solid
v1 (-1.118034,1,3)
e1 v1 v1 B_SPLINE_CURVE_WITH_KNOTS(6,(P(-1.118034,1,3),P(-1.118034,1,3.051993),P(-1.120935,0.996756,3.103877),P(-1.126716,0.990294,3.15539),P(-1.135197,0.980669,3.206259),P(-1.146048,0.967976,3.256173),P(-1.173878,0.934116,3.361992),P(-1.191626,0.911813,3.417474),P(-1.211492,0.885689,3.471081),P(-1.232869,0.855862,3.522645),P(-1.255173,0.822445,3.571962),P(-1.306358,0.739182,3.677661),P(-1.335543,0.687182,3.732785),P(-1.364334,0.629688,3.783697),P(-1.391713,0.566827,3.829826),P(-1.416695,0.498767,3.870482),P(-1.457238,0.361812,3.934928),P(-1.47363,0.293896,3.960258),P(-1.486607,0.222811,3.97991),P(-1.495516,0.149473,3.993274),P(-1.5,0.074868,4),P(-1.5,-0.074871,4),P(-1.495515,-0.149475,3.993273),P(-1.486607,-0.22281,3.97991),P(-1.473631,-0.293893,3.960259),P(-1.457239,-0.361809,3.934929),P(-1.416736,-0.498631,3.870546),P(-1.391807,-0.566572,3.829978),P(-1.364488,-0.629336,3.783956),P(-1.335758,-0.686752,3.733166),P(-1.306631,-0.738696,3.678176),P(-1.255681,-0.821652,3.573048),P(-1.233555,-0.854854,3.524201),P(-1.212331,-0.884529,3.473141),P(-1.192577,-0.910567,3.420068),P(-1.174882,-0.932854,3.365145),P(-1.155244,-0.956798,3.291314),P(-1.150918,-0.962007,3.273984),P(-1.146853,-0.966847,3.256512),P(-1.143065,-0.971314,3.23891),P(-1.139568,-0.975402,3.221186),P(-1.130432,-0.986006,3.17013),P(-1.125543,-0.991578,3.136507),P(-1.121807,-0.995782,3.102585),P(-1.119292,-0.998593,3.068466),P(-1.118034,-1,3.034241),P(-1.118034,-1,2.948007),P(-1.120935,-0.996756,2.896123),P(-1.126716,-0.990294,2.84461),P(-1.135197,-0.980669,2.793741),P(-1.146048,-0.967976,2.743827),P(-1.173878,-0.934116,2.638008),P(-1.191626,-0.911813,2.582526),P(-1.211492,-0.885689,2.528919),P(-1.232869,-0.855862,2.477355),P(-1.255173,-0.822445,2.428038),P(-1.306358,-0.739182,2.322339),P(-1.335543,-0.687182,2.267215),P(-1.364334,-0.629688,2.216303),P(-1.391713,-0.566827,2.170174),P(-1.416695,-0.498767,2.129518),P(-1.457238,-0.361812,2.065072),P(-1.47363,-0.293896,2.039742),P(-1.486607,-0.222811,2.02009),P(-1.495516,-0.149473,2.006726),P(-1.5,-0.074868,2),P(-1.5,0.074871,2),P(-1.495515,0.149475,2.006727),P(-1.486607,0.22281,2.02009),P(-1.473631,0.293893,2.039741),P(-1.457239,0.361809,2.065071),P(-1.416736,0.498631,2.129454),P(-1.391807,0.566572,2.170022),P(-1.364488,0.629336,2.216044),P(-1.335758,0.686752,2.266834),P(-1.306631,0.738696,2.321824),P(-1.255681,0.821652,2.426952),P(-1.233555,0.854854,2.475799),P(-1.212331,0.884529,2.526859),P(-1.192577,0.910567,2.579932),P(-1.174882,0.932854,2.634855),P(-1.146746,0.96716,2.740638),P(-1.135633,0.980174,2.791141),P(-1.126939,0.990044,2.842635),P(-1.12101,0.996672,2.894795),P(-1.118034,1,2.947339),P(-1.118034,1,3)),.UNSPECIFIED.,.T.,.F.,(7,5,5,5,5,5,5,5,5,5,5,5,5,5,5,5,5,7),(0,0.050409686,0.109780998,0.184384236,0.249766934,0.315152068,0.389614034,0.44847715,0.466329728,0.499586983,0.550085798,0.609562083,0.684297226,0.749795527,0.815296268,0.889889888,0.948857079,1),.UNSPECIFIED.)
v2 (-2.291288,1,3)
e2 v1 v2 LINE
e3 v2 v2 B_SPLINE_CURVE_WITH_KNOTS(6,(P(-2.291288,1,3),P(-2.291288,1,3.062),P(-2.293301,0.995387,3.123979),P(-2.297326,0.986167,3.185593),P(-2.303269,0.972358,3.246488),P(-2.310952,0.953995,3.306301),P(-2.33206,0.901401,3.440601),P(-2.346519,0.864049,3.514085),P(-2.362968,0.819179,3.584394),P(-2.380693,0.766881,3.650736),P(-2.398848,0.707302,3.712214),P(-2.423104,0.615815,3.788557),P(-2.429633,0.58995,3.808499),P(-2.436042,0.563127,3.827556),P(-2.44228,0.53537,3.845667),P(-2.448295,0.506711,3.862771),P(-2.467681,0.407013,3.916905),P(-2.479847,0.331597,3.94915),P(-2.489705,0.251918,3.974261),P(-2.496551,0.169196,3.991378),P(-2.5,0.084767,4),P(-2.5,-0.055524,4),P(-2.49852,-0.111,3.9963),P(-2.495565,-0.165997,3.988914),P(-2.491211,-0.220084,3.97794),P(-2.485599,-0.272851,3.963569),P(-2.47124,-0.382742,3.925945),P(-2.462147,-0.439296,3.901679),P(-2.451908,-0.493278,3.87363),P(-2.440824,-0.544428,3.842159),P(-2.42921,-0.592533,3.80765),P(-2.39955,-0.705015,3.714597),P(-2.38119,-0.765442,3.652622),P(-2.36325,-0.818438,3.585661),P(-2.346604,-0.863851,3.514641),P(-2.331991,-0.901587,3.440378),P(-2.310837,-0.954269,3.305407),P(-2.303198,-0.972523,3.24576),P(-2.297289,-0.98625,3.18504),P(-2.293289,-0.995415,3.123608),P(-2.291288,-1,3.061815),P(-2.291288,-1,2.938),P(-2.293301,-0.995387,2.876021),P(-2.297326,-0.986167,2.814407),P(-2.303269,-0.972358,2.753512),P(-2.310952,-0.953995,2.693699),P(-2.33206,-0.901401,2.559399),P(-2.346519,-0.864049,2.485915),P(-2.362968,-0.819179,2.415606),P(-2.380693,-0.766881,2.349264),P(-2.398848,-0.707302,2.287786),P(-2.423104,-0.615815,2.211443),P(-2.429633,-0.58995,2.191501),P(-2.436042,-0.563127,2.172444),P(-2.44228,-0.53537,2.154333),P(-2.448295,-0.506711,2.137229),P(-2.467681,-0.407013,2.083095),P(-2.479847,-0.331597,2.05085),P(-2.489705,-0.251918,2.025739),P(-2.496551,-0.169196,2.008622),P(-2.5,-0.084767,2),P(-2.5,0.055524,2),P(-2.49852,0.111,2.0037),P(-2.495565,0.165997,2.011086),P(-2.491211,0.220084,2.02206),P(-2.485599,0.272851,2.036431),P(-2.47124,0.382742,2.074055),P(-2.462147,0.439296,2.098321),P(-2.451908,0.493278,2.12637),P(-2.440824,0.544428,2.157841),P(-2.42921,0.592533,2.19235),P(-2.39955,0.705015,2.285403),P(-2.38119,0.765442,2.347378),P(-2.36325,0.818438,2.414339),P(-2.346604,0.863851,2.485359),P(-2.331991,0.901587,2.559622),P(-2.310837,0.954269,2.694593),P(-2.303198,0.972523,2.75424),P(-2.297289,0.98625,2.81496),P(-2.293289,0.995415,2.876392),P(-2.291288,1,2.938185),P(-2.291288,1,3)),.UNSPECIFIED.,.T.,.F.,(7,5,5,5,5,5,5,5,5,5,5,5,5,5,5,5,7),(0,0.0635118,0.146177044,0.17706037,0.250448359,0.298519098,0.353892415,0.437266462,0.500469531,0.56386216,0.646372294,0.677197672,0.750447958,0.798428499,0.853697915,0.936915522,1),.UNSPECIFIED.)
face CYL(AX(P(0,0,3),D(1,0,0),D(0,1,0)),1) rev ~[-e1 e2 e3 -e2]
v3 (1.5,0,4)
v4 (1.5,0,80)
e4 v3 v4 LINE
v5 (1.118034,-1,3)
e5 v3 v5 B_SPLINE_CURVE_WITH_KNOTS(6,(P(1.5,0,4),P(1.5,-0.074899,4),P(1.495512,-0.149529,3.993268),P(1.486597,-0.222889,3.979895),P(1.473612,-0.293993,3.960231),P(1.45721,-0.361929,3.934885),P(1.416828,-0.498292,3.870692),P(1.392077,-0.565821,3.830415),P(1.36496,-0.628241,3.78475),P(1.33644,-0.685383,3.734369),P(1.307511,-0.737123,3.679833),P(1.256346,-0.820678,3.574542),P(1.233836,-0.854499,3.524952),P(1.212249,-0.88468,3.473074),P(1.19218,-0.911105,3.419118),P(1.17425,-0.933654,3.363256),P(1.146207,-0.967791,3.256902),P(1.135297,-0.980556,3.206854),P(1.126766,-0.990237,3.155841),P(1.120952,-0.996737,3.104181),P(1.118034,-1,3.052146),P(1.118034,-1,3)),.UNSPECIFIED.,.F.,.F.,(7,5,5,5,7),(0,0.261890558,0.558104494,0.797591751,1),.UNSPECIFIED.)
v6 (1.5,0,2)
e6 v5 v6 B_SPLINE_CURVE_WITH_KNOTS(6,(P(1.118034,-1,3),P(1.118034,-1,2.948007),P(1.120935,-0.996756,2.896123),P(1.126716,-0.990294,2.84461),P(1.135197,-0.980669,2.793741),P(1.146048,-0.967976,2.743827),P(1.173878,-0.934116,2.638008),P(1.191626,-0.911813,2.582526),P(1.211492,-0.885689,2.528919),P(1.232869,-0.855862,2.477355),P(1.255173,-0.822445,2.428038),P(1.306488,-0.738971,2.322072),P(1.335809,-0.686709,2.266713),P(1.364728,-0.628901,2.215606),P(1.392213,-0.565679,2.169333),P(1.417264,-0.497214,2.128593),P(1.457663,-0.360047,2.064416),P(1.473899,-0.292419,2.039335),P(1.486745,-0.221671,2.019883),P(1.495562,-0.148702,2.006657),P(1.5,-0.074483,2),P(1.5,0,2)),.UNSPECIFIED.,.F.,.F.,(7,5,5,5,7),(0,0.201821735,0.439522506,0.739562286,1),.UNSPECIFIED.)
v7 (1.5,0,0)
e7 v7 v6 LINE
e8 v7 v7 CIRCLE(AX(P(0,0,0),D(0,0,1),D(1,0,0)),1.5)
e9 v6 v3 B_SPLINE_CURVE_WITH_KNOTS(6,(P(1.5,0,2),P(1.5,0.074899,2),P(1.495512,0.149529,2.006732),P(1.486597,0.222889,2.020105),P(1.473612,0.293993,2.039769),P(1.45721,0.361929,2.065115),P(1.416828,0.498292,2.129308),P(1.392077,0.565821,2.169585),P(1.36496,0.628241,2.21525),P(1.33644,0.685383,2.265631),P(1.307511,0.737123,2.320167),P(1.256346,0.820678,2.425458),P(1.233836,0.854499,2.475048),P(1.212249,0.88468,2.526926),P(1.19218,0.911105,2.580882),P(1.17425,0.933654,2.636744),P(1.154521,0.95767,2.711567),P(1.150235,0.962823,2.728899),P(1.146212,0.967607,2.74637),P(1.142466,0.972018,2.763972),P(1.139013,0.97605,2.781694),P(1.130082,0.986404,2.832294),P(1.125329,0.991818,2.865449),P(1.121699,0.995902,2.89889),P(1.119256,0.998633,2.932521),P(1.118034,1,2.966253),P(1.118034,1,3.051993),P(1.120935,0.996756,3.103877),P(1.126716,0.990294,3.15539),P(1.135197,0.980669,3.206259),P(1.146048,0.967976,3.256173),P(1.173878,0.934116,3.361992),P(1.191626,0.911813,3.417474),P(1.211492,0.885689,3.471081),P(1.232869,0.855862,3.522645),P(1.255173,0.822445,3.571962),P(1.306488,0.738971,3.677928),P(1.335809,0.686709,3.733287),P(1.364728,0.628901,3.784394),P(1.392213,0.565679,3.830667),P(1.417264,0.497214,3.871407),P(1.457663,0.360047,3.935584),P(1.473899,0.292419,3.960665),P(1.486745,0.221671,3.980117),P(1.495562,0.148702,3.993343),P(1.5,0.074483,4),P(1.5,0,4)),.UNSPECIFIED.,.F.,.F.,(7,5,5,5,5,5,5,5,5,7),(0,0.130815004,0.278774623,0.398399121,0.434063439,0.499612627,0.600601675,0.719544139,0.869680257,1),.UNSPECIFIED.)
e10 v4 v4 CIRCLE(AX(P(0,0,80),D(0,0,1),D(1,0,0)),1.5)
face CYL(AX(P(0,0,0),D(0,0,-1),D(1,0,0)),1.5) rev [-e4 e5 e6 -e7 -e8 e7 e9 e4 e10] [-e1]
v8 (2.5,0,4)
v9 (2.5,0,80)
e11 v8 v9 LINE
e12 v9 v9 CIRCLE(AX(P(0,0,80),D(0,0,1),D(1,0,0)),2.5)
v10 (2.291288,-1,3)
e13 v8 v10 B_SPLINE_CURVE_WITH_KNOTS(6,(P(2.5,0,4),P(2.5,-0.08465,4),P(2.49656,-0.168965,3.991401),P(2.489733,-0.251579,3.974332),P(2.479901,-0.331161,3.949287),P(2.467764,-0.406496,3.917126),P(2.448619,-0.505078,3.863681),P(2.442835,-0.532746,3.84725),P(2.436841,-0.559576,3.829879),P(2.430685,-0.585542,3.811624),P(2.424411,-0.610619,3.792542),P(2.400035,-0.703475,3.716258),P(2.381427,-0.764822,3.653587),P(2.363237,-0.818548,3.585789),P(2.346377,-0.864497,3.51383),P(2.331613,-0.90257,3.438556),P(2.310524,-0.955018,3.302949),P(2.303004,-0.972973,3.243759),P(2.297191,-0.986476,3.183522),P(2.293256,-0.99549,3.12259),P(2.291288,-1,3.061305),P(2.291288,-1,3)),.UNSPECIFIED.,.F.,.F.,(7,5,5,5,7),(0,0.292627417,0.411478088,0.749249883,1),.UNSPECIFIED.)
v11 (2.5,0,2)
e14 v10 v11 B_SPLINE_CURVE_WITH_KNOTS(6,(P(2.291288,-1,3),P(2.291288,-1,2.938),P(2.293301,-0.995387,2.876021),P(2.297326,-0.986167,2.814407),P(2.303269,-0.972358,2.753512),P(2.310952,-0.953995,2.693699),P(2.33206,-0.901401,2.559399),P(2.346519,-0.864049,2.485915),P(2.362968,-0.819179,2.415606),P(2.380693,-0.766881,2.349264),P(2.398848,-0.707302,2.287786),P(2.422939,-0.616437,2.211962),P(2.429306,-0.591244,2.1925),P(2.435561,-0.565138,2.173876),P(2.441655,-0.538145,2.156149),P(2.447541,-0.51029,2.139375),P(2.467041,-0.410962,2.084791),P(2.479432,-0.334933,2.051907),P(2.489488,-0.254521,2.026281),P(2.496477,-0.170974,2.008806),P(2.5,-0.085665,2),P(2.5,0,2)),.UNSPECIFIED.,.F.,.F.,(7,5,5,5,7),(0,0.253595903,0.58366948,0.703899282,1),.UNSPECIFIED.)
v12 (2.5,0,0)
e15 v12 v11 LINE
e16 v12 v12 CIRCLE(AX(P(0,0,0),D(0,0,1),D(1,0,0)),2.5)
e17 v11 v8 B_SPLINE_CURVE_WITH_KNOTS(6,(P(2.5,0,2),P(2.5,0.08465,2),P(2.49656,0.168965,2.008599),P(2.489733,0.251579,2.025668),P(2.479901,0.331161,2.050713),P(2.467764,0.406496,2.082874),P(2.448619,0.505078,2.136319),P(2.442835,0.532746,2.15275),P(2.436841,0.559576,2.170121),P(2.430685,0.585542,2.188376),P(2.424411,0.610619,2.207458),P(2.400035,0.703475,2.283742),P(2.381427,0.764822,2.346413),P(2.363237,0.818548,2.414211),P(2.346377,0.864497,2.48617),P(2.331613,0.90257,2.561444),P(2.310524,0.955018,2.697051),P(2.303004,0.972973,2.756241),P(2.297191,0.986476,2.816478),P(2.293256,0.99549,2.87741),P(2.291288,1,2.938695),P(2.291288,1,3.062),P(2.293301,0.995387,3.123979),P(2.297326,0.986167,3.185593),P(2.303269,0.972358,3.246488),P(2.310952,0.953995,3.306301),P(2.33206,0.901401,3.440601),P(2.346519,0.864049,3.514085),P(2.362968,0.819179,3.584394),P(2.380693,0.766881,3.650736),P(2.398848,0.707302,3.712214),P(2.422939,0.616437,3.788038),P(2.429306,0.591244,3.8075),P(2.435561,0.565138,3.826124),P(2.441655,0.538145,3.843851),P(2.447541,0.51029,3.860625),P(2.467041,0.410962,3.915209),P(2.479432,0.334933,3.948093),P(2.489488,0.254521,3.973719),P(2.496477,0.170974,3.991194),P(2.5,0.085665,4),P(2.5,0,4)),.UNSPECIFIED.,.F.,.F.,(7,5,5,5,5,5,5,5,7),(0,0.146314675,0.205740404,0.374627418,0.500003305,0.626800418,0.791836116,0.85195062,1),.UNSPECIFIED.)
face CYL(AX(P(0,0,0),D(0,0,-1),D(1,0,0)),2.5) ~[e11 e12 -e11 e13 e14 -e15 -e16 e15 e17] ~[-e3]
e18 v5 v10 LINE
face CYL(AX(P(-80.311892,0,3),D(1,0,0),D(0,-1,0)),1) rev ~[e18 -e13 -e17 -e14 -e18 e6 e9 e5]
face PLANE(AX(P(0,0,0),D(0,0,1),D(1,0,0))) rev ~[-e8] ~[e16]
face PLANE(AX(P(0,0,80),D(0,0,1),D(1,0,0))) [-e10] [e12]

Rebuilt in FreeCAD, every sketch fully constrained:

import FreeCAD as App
import Part
import Sketcher

doc = App.newDocument("Part")
body = doc.addObject("PartDesign::Body", "Body")

# Sketch on XY plane
sketch1 = body.newObject("Sketcher::SketchObject", "Sketch")
sketch1.AttachmentSupport = (doc.getObject("XY_Plane"), [""])
sketch1.MapMode = "FlatFace"
sketch1.addGeometry(Part.Circle(App.Vector(0, 0, 0), App.Vector(0, 0, 1), 2.5), False)
sketch1.addGeometry(Part.Circle(App.Vector(0, 0, 0), App.Vector(0, 0, 1), 1.5), False)
sketch1.addConstraint(Sketcher.Constraint("Coincident", 0, 3, -1, 1))
sketch1.addConstraint(Sketcher.Constraint("Coincident", 1, 3, -1, 1))
sketch1.addConstraint(Sketcher.Constraint("Diameter", 0, 5.0))
sketch1.addConstraint(Sketcher.Constraint("Diameter", 1, 3.0))
pad1 = body.newObject("PartDesign::Pad", "Pad")
pad1.Profile = sketch1
pad1.Length = 80

# Sketch on YZ plane
sketch2 = body.newObject("Sketcher::SketchObject", "Sketch001")
sketch2.AttachmentSupport = (doc.getObject("YZ_Plane"), [""])
sketch2.MapMode = "FlatFace"
sketch2.addGeometry(Part.Circle(App.Vector(0, 3, 0), App.Vector(0, 0, 1), 1), False)
sketch2.addConstraint(Sketcher.Constraint("PointOnObject", 0, 3, -2))
sketch2.addConstraint(Sketcher.Constraint("Diameter", 0, 2.0))
sketch2.addConstraint(Sketcher.Constraint("DistanceY", -1, 1, 0, 3, 3.0))
pocket1 = body.newObject("PartDesign::Pocket", "Pocket")
pocket1.Profile = sketch2
pocket1.Type = "ThroughAll"

# Sketch on YZ plane
sketch3 = body.newObject("Sketcher::SketchObject", "Sketch002")
sketch3.AttachmentSupport = (doc.getObject("YZ_Plane"), [""])
sketch3.MapMode = "FlatFace"
sketch3.addGeometry(Part.Circle(App.Vector(0, 3, 0), App.Vector(0, 0, 1), 1), False)
sketch3.addConstraint(Sketcher.Constraint("PointOnObject", 0, 3, -2))
sketch3.addConstraint(Sketcher.Constraint("Diameter", 0, 2.0))
sketch3.addConstraint(Sketcher.Constraint("DistanceY", -1, 1, 0, 3, 3.0))
doc.recompute()
hole = body.newObject("PartDesign::Hole", "Hole")
hole.Profile = sketch3
hole.ThreadType = "None"
hole.Diameter = 2
hole.DepthType = "ThroughAll"
hole.Reversed = True

doc.recompute()
